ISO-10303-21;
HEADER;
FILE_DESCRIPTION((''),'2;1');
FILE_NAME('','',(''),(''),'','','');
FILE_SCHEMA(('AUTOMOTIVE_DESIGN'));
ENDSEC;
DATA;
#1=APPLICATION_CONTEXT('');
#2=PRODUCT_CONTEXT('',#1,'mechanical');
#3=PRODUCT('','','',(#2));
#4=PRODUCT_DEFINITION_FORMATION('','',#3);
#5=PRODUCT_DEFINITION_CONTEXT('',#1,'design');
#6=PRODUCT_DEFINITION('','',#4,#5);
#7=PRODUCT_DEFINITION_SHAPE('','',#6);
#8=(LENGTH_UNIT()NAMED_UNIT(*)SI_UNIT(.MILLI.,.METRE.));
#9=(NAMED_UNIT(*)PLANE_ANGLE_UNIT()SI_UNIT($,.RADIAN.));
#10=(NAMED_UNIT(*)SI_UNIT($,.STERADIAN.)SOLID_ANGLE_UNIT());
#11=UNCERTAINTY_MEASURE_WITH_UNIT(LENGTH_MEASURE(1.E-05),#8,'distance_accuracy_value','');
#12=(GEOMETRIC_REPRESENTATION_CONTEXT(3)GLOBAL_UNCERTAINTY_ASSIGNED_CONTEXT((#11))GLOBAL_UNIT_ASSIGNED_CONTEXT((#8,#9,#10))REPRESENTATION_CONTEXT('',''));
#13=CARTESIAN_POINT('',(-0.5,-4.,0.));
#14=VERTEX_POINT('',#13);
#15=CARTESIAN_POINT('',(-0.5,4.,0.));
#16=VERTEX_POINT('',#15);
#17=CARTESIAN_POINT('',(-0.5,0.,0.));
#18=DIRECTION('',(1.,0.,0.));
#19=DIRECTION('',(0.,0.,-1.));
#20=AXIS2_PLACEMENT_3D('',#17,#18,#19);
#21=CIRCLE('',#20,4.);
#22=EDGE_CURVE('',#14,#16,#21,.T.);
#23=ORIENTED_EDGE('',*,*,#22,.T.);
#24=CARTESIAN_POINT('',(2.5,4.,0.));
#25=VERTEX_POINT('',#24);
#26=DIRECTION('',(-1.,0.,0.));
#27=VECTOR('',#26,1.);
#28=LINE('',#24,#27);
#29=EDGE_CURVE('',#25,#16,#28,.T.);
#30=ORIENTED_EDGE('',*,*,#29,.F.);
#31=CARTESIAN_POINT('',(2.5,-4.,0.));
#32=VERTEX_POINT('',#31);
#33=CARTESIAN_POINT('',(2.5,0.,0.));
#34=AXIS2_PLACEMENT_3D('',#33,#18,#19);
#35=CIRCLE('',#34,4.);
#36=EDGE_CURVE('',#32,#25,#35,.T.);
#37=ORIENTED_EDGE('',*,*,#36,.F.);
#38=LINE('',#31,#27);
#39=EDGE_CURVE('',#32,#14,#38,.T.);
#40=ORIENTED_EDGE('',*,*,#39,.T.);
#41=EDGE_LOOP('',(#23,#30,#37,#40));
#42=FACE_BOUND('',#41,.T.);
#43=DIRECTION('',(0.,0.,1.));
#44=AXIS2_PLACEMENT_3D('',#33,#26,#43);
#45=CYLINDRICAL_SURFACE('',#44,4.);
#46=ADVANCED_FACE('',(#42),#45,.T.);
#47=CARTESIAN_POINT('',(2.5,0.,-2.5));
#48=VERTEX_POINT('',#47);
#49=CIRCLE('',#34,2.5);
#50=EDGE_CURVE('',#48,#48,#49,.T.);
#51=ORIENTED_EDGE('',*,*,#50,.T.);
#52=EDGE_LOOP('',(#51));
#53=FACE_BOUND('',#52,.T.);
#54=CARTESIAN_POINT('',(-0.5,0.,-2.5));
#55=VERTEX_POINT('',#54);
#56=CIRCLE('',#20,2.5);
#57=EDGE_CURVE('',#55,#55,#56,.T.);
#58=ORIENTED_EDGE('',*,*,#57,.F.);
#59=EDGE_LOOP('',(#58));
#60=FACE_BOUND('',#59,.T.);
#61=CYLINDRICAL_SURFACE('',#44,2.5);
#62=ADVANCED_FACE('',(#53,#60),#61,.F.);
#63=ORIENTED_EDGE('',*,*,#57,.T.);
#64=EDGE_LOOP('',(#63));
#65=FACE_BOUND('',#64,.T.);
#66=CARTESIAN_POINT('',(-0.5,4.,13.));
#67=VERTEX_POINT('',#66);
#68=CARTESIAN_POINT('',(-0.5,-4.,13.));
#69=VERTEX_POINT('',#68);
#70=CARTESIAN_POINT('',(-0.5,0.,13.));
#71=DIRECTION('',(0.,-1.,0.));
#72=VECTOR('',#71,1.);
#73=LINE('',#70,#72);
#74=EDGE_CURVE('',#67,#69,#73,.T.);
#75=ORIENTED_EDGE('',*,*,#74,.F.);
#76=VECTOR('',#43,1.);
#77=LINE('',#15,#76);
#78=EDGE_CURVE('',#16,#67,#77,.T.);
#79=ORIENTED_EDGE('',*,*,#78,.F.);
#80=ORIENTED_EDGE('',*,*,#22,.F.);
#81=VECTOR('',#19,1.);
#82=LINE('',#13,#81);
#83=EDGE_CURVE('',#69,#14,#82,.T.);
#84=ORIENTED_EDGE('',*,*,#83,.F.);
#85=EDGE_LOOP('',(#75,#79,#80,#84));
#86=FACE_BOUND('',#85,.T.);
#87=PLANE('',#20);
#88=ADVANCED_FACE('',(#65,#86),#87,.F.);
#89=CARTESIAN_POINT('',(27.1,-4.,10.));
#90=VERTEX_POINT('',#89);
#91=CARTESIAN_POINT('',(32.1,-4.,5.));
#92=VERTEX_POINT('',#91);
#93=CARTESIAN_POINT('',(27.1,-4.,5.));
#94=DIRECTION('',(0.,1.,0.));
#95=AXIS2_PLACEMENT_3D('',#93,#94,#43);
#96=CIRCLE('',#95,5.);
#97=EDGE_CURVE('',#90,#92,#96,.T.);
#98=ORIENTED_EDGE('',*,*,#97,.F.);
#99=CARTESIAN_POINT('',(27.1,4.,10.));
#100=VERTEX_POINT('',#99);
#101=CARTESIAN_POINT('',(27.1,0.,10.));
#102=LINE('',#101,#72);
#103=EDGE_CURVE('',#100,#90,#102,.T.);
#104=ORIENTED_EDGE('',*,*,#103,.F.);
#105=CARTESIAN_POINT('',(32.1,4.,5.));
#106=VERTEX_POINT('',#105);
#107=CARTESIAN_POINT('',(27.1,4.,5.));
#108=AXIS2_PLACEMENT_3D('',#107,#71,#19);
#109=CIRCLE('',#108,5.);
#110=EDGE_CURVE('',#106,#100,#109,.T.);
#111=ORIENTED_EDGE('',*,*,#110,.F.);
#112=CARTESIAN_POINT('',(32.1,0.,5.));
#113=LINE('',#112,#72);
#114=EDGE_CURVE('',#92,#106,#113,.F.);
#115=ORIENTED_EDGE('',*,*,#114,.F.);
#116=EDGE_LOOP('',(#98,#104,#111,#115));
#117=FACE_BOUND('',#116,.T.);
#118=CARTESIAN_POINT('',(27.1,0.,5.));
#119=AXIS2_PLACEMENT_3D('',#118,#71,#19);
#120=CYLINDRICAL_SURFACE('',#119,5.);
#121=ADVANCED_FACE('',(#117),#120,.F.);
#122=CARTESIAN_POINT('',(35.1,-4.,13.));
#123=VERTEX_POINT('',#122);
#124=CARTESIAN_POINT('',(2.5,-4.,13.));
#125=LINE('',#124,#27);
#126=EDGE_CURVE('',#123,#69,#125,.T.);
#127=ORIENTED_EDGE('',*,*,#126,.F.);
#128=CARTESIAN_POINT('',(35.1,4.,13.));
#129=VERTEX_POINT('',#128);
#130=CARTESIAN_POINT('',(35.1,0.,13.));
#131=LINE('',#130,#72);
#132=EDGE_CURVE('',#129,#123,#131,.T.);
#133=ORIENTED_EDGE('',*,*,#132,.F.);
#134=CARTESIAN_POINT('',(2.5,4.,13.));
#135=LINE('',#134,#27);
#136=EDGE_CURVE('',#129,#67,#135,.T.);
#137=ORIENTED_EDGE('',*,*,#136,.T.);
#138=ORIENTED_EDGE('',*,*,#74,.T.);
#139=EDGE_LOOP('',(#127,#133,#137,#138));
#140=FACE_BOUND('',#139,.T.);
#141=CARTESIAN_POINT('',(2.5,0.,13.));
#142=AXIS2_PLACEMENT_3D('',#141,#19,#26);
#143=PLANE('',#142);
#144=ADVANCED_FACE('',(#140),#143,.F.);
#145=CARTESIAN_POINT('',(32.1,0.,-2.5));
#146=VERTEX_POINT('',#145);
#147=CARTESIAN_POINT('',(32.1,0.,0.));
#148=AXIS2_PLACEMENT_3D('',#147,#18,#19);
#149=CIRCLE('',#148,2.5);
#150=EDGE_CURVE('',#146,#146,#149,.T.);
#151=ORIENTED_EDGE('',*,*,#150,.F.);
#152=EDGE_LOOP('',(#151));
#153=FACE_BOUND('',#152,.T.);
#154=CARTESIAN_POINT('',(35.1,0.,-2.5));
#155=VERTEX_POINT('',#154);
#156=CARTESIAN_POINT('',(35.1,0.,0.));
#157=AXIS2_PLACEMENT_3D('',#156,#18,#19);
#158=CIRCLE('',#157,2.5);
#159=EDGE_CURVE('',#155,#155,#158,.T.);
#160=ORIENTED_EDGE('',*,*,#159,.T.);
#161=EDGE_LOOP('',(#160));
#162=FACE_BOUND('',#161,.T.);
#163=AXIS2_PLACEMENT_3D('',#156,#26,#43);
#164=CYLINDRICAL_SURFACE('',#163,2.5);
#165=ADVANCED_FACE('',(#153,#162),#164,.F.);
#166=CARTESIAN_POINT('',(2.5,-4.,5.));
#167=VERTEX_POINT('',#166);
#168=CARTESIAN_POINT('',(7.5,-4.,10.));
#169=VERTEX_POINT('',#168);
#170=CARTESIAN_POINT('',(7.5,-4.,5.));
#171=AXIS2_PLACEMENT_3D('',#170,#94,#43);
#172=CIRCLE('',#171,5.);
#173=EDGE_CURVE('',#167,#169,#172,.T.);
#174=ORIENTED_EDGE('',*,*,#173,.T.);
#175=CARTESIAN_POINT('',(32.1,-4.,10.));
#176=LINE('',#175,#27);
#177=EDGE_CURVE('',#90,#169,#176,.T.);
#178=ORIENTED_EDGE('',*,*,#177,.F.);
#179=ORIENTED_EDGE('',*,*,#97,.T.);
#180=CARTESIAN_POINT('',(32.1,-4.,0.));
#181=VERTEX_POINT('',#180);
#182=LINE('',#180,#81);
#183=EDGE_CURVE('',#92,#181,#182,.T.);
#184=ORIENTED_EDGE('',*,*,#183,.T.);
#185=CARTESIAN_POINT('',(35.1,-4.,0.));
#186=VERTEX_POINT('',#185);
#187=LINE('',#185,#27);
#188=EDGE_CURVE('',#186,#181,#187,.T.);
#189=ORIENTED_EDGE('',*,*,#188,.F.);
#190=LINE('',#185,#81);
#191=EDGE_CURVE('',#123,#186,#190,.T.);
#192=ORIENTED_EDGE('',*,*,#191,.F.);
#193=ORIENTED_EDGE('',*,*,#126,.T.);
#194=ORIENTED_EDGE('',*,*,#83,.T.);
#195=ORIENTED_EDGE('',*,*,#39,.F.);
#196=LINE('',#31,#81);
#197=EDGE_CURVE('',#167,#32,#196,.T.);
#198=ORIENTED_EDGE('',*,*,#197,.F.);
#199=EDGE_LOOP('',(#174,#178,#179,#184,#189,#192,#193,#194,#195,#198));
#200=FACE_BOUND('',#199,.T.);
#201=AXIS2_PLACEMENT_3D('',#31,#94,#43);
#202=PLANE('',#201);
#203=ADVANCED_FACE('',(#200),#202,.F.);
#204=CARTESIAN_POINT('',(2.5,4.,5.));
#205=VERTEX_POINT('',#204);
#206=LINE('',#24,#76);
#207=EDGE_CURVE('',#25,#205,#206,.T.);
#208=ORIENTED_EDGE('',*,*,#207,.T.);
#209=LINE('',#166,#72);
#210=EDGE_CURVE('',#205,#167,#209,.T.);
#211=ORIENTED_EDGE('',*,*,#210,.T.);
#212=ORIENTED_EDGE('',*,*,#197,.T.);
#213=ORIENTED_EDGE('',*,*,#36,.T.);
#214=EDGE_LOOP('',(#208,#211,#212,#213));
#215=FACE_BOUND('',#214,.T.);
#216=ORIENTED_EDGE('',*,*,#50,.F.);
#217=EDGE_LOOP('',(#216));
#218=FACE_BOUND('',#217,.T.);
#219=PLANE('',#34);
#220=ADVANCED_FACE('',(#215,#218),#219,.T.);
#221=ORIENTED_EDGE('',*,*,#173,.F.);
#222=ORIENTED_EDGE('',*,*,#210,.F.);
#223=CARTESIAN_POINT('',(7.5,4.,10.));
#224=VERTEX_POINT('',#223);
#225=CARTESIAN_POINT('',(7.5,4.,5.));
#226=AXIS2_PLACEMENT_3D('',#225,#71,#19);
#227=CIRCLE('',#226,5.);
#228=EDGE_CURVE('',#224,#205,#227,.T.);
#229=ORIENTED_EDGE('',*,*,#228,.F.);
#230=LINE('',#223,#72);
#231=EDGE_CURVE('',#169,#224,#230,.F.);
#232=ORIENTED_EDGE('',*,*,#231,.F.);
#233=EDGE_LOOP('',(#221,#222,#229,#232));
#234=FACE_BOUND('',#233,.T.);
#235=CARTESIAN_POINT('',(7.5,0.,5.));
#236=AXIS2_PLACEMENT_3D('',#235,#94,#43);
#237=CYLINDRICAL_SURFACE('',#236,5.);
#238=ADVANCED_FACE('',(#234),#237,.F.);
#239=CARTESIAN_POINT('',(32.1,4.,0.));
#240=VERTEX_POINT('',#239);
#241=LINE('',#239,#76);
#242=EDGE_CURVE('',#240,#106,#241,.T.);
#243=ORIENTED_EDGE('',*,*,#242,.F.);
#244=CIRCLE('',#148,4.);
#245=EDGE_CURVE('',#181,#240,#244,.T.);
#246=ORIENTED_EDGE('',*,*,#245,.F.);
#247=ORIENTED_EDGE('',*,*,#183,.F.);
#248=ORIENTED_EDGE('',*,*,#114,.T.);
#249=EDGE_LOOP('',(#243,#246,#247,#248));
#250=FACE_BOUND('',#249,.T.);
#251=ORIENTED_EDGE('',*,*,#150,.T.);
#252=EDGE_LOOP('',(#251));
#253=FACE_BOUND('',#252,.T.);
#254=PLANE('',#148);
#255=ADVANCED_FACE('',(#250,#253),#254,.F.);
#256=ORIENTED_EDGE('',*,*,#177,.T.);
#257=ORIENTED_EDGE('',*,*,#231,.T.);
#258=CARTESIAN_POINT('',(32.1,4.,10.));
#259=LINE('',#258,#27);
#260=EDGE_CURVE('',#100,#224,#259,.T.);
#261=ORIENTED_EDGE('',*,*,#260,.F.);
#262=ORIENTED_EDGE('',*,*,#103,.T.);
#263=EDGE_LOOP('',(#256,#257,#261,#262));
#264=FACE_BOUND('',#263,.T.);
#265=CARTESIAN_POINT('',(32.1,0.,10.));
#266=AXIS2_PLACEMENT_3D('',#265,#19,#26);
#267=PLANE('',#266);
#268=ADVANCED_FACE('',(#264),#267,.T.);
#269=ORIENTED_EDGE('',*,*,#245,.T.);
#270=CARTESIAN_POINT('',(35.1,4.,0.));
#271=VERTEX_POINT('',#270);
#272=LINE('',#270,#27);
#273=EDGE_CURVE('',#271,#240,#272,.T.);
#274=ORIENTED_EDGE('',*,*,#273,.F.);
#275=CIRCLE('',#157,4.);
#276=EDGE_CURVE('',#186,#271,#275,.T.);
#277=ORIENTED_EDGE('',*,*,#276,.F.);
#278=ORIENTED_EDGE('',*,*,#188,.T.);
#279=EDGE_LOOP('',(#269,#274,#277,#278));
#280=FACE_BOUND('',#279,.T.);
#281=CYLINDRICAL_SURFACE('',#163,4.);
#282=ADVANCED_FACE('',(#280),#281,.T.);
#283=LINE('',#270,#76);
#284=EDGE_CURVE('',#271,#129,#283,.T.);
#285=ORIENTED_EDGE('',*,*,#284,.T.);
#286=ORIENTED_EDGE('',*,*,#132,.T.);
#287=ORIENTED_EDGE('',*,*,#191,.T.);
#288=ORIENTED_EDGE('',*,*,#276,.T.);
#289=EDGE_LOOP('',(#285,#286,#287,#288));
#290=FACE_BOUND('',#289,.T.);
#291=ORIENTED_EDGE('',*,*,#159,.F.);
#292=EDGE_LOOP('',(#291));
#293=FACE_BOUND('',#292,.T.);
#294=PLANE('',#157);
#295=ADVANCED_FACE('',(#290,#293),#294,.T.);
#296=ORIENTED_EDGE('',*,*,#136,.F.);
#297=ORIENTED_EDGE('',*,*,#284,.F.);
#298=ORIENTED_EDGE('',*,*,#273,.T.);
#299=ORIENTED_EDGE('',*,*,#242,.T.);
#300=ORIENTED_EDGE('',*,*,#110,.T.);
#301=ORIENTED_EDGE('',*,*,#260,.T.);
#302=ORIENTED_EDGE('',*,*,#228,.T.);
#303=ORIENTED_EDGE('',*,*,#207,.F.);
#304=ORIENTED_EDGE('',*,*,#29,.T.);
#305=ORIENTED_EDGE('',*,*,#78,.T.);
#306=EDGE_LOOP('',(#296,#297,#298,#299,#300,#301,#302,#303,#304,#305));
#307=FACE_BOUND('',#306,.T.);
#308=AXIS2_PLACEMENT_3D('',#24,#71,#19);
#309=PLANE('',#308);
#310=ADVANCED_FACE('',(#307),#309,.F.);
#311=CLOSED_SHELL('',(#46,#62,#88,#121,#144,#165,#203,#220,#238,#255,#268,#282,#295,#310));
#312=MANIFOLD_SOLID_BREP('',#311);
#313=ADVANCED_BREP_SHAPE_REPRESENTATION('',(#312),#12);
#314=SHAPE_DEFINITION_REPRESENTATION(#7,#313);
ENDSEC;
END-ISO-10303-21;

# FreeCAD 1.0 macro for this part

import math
import FreeCAD as App
import Part
import Sketcher
from FreeCAD import Vector


def edges_at(feature, points):
    """Names of the edges that pass closest to the given points."""
    edges = feature.Shape.Edges
    near = lambda p: min(range(len(edges)), key=lambda i: edges[i].distToShape(Part.Vertex(*p))[0])
    return sorted({f"Edge{near(p) + 1}" for p in points})


def add_polygon(sketch, points):
    """Adds a closed chain of lines whose ends are joined by coincident constraints."""
    first, n = sketch.GeometryCount, len(points)
    for a, b in zip(points, points[1:] + points[:1]):
        sketch.addGeometry(Part.LineSegment(App.Vector(*a, 0), App.Vector(*b, 0)), False)
    for i in range(n):
        sketch.addConstraint(Sketcher.Constraint("Coincident", first + i, 2, first + (i + 1) % n, 1))

doc = App.newDocument("Part")
body = doc.addObject("PartDesign::Body", "Body")

# Sketch on YZ plane
sketch1 = doc.addObject("Sketcher::SketchObject", "Sketch")
body.addObject(sketch1)
sketch1.AttachmentSupport = (doc.YZ_Plane, [""])
sketch1.MapMode = "FlatFace"
sketch1.AttachmentOffset = App.Placement(Vector(0, 0, -0.5), App.Rotation())
sketch1.addGeometry(Part.LineSegment(Vector(4, 13, 0), Vector(-4, 13, 0)), False)
sketch1.addGeometry(Part.LineSegment(Vector(-4, 13, 0), Vector(-4, 0, 0)), False)
sketch1.addGeometry(Part.ArcOfCircle(Part.Circle(Vector(0, 0, 0), Vector(0, 0, 1), 4), math.radians(180), math.radians(360)), False)
sketch1.addGeometry(Part.LineSegment(Vector(4, 0, 0), Vector(4, 13, 0)), False)
sketch1.addGeometry(Part.Circle(Vector(0, 0, 0), Vector(0, 0, 1), 2.5), False)
sketch1.addConstraint(Sketcher.Constraint("Coincident", 0, 2, 1, 1))
sketch1.addConstraint(Sketcher.Constraint("Tangent", 1, 2, 2, 1))
sketch1.addConstraint(Sketcher.Constraint("Tangent", 2, 2, 3, 1))
sketch1.addConstraint(Sketcher.Constraint("Coincident", 3, 2, 0, 1))
sketch1.addConstraint(Sketcher.Constraint("Horizontal", 0))
sketch1.addConstraint(Sketcher.Constraint("Vertical", 1))
sketch1.addConstraint(Sketcher.Constraint("Vertical", 3))
sketch1.addConstraint(Sketcher.Constraint("Coincident", 2, 3, -1, 1))
sketch1.addConstraint(Sketcher.Constraint("Coincident", 4, 3, -1, 1))
sketch1.addConstraint(Sketcher.Constraint("Diameter", 4, 5.0))
sketch1.addConstraint(Sketcher.Constraint("Radius", 2, 4.0))
sketch1.addConstraint(Sketcher.Constraint("DistanceY", 1, 2, 1, 1, 13.0))
pad1 = doc.addObject("PartDesign::Pad", "Pad")
body.addObject(pad1)
pad1.Profile = sketch1
pad1.Length = 3

# Sketch on YZ plane
sketch2 = doc.addObject("Sketcher::SketchObject", "Sketch001")
body.addObject(sketch2)
sketch2.AttachmentSupport = (doc.YZ_Plane, [""])
sketch2.MapMode = "FlatFace"
sketch2.AttachmentOffset = App.Placement(Vector(0, 0, 2.5), App.Rotation())
add_polygon(sketch2, [(4, 13), (-4, 13), (-4, 10), (4, 10)])  # lines 0-3
sketch2.addConstraint(Sketcher.Constraint("Horizontal", 0))
sketch2.addConstraint(Sketcher.Constraint("Vertical", 1))
sketch2.addConstraint(Sketcher.Constraint("Horizontal", 2))
sketch2.addConstraint(Sketcher.Constraint("Vertical", 3))
sketch2.addConstraint(Sketcher.Constraint("DistanceX", 0, 2, 0, 1, 8.0))
sketch2.addConstraint(Sketcher.Constraint("DistanceY", 1, 2, 1, 1, 3.0))
sketch2.addConstraint(Sketcher.Constraint("DistanceX", 0, 2, -1, 1, 4.0))
sketch2.addConstraint(Sketcher.Constraint("DistanceY", -1, 1, 0, 2, 13.0))
pad2 = doc.addObject("PartDesign::Pad", "Pad001")
body.addObject(pad2)
pad2.Profile = sketch2
pad2.Length = 29.6

# Sketch on YZ plane
sketch3 = doc.addObject("Sketcher::SketchObject", "Sketch002")
body.addObject(sketch3)
sketch3.AttachmentSupport = (doc.YZ_Plane, [""])
sketch3.MapMode = "FlatFace"
sketch3.AttachmentOffset = App.Placement(Vector(0, 0, 32.1), App.Rotation())
sketch3.addGeometry(Part.LineSegment(Vector(4, 13, 0), Vector(-4, 13, 0)), False)
sketch3.addGeometry(Part.LineSegment(Vector(-4, 13, 0), Vector(-4, 0, 0)), False)
sketch3.addGeometry(Part.ArcOfCircle(Part.Circle(Vector(0, 0, 0), Vector(0, 0, 1), 4), math.radians(180), math.radians(360)), False)
sketch3.addGeometry(Part.LineSegment(Vector(4, 0, 0), Vector(4, 13, 0)), False)
sketch3.addGeometry(Part.Circle(Vector(0, 0, 0), Vector(0, 0, 1), 2.5), False)
sketch3.addConstraint(Sketcher.Constraint("Coincident", 0, 2, 1, 1))
sketch3.addConstraint(Sketcher.Constraint("Tangent", 1, 2, 2, 1))
sketch3.addConstraint(Sketcher.Constraint("Tangent", 2, 2, 3, 1))
sketch3.addConstraint(Sketcher.Constraint("Coincident", 3, 2, 0, 1))
sketch3.addConstraint(Sketcher.Constraint("Horizontal", 0))
sketch3.addConstraint(Sketcher.Constraint("Vertical", 1))
sketch3.addConstraint(Sketcher.Constraint("Vertical", 3))
sketch3.addConstraint(Sketcher.Constraint("Coincident", 2, 3, -1, 1))
sketch3.addConstraint(Sketcher.Constraint("Coincident", 4, 3, -1, 1))
sketch3.addConstraint(Sketcher.Constraint("Diameter", 4, 5.0))
sketch3.addConstraint(Sketcher.Constraint("Radius", 2, 4.0))
sketch3.addConstraint(Sketcher.Constraint("DistanceY", 1, 2, 1, 1, 13.0))
pad3 = doc.addObject("PartDesign::Pad", "Pad002")
body.addObject(pad3)
pad3.Profile = sketch3
pad3.Length = 3
doc.recompute()

fillet = doc.addObject("PartDesign::Fillet", "Fillet")
body.addObject(fillet)
fillet.Base = (pad3, edges_at(pad3, [(32.1, 0, 10), (2.5, 0, 10)]))
fillet.Radius = 5

doc.recompute()
